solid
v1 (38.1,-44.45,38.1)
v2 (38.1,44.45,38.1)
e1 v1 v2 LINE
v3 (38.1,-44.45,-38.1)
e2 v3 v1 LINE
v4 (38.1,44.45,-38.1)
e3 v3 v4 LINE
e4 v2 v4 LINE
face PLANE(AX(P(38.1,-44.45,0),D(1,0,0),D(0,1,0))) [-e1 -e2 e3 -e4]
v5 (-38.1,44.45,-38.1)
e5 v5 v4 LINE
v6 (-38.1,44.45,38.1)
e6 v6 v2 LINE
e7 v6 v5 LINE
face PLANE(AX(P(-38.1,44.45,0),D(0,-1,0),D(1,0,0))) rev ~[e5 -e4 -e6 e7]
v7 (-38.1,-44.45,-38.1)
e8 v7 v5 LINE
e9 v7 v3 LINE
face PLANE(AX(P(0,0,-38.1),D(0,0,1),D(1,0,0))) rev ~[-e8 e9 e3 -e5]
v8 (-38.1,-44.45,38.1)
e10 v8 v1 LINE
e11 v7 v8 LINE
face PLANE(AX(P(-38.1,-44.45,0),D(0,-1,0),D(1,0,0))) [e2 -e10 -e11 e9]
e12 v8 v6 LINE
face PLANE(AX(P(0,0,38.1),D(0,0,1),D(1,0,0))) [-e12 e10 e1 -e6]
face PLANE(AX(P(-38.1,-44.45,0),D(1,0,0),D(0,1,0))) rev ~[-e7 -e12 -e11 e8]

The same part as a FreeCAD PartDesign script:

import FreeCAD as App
import Part
import Sketcher
from FreeCAD import Vector
Q = App.Units.Quantity

doc = App.newDocument("Part")
body = doc.addObject("PartDesign::Body", "Body")

sketch1 = doc.addObject("Sketcher::SketchObject", "Sketch")
body.addObject(sketch1)
sketch1.AttachmentSupport = (doc.XY_Plane, [""])
sketch1.MapMode = "FlatFace"
sketch1.addGeometry(Part.LineSegment(Vector(-38, 44, 0), Vector(-38, -44, 0)), False)
sketch1.addGeometry(Part.LineSegment(Vector(-38, -44, 0), Vector(38, -44, 0)), False)
sketch1.addGeometry(Part.LineSegment(Vector(38, -44, 0), Vector(38, 44, 0)), False)
sketch1.addGeometry(Part.LineSegment(Vector(38, 44, 0), Vector(-38, 44, 0)), False)
sketch1.addConstraint(Sketcher.Constraint("Coincident", 0, 2, 1, 1))
sketch1.addConstraint(Sketcher.Constraint("Coincident", 1, 2, 2, 1))
sketch1.addConstraint(Sketcher.Constraint("Coincident", 2, 2, 3, 1))
sketch1.addConstraint(Sketcher.Constraint("Coincident", 3, 2, 0, 1))
sketch1.addConstraint(Sketcher.Constraint("Vertical", 0))
sketch1.addConstraint(Sketcher.Constraint("Horizontal", 1))
sketch1.addConstraint(Sketcher.Constraint("Vertical", 2))
sketch1.addConstraint(Sketcher.Constraint("Horizontal", 3))
sketch1.addConstraint(Sketcher.Constraint("Symmetric", 0, 2, 2, 2, -1, 1))
sketch1.addConstraint(Sketcher.Constraint("DistanceX", 1, 1, 1, 2, Q("3 in")))
sketch1.addConstraint(Sketcher.Constraint("DistanceY", 0, 2, 0, 1, Q("3.5 in")))
pad1 = doc.addObject("PartDesign::Pad", "Pad")
body.addObject(pad1)
pad1.Profile = sketch1
pad1.Length = Q("3 in")
pad1.Midplane = True

doc.recompute()
